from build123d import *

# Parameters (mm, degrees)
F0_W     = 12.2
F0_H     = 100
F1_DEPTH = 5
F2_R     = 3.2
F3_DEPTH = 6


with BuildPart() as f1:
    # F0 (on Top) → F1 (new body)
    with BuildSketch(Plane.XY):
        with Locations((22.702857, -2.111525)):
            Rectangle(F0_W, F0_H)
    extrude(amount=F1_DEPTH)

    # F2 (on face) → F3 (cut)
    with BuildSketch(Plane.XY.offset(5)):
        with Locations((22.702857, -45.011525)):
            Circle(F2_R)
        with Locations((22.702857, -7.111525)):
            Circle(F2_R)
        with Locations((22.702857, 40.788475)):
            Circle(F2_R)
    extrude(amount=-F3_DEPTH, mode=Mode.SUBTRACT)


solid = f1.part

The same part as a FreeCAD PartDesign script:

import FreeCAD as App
import Part
import Sketcher

V = App.Vector


def add_polygon(sketch, points):
    """Adds a closed chain of lines whose ends are joined by coincident constraints."""
    first, n = sketch.GeometryCount, len(points)
    for a, b in zip(points, points[1:] + points[:1]):
        sketch.addGeometry(Part.LineSegment(App.Vector(*a, 0), App.Vector(*b, 0)), False)
    for i in range(n):
        sketch.addConstraint(Sketcher.Constraint("Coincident", first + i, 2, first + (i + 1) % n, 1))

doc = App.newDocument("Part")
body = doc.addObject("PartDesign::Body", "Body")

sketch1 = body.newObject("Sketcher::SketchObject", "Sketch")
sketch1.AttachmentSupport = (doc.getObject("XY_Plane"), [""])
sketch1.MapMode = "FlatFace"
add_polygon(sketch1, [(17, 48), (17, -52), (29, -52), (29, 48)])
sketch1.addConstraint([
    Sketcher.Constraint("Vertical", 0),
    Sketcher.Constraint("Horizontal", 1),
    Sketcher.Constraint("Vertical", 2),
    Sketcher.Constraint("Horizontal", 3),
    Sketcher.Constraint("DistanceY", 0, 2, 0, 1, 100.0),
    Sketcher.Constraint("DistanceX", 1, 1, 1, 2, 12.2),
    Sketcher.Constraint("DistanceX", -1, 1, 0, 2, 16.602857),
    Sketcher.Constraint("DistanceY", 0, 2, -1, 1, 52.111525),
])
pad1 = body.newObject("PartDesign::Pad", "Pad")
pad1.Profile = sketch1
pad1.Length = 5

sketch2 = body.newObject("Sketcher::SketchObject", "Sketch001")
sketch2.AttachmentSupport = (doc.getObject("XY_Plane"), [""])
sketch2.MapMode = "FlatFace"
sketch2.AttachmentOffset = App.Placement(V(0, 0, 5), App.Rotation())
sketch2.addGeometry([
    Part.Circle(V(22.7, -45, 0), V(0, 0, 1), 3.2),
    Part.Circle(V(22.7, -7.1, 0), V(0, 0, 1), 3.2),
    Part.Circle(V(22.7, 40.8, 0), V(0, 0, 1), 3.2),
], False)
sketch2.addConstraint([
    Sketcher.Constraint("Equal", 0, 1),
    Sketcher.Constraint("Equal", 1, 2),
    Sketcher.Constraint("Vertical", 0, 3, 1, 3),
    Sketcher.Constraint("Vertical", 1, 3, 2, 3),
    Sketcher.Constraint("Diameter", 0, 6.4),
    Sketcher.Constraint("DistanceY", 0, 3, 1, 3, 37.9),
    Sketcher.Constraint("DistanceY", 1, 3, 2, 3, 47.9),
    Sketcher.Constraint("DistanceX", -1, 1, 0, 3, 22.702857),
    Sketcher.Constraint("DistanceY", 0, 3, -1, 1, 45.011525),
])
pocket1 = body.newObject("PartDesign::Pocket", "Pocket")
pocket1.Profile = sketch2
pocket1.Length = 6

doc.recompute()
